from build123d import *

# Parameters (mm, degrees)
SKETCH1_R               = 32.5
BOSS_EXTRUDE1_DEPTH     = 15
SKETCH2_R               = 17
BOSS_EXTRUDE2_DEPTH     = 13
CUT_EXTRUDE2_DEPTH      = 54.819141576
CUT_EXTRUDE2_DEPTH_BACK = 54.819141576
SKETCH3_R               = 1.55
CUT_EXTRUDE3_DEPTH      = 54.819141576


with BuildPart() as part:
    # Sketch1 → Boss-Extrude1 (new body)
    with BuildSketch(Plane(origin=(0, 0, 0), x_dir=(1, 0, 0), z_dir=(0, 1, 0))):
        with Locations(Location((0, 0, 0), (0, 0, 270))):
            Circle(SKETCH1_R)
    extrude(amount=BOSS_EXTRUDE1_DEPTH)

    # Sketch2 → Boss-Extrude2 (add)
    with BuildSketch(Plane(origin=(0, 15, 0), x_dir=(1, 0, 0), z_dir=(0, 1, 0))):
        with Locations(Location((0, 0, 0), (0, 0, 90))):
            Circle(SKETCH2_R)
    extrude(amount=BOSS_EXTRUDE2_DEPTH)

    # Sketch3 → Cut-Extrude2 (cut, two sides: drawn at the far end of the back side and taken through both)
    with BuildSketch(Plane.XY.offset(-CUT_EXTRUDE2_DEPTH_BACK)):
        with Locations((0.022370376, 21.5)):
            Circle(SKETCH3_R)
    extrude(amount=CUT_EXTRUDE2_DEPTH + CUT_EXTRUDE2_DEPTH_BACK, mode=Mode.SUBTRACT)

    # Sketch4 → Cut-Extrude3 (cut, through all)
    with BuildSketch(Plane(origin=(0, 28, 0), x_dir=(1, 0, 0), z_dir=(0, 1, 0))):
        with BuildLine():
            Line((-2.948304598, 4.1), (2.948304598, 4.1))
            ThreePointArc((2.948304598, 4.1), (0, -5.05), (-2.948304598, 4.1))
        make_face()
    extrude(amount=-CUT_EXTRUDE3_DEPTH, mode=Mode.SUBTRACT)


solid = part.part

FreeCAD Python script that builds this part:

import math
import FreeCAD as App
import Part
import Sketcher
from FreeCAD import Vector

doc = App.newDocument("Part")
params = doc.addObject("Spreadsheet::Sheet", "Params")
for row, (alias, value) in enumerate([
    ("sketch1_diameter", "65 mm"),
    ("pad1_length", "15 mm"),
    ("sketch2_diameter", "34 mm"),
    ("pad2_length", "13 mm"),
    ("sketch3_diameter", "3.1 mm"),
    ("sketch4_radius", "5.05 mm"),
], start=1):
    params.set(f"A{row}", alias)
    params.set(f"B{row}", "=" + value)
    params.setAlias(f"B{row}", alias)

body = doc.addObject("PartDesign::Body", "Body")

sketch1 = body.newObject("Sketcher::SketchObject", "Sketch")
sketch1.AttachmentSupport = (doc.getObject("XZ_Plane"), [""])
sketch1.MapMode = "FlatFace"
sketch1.addGeometry(Part.Circle(Vector(0, 0, 0), Vector(0, 0, 1), 32), False)
sketch1.addConstraint([
    Sketcher.Constraint("Coincident", 0, 3, -1, 1),
    Sketcher.Constraint("Diameter", 0, 65.0),
])
sketch1.setExpression("Constraints[1]", "Params.sketch1_diameter")
pad1 = body.newObject("PartDesign::Pad", "Pad")
pad1.Profile = sketch1
pad1.setExpression("Length", "Params.pad1_length")
pad1.Reversed = True

sketch2 = body.newObject("Sketcher::SketchObject", "Sketch001")
sketch2.AttachmentSupport = (doc.getObject("XZ_Plane"), [""])
sketch2.MapMode = "FlatFace"
sketch2.AttachmentOffset = App.Placement(Vector(0, 0, -15), App.Rotation())
sketch2.addGeometry(Part.Circle(Vector(0, 0, 0), Vector(0, 0, 1), 17), False)
sketch2.addConstraint([
    Sketcher.Constraint("Coincident", 0, 3, -1, 1),
    Sketcher.Constraint("Diameter", 0, 34.0),
])
sketch2.setExpression("Constraints[1]", "Params.sketch2_diameter")
pad2 = body.newObject("PartDesign::Pad", "Pad001")
pad2.Profile = sketch2
pad2.setExpression("Length", "Params.pad2_length")
pad2.Reversed = True

sketch3 = body.newObject("Sketcher::SketchObject", "Sketch002")
sketch3.AttachmentSupport = (doc.getObject("XY_Plane"), [""])
sketch3.MapMode = "FlatFace"
sketch3.addGeometry(Part.Circle(Vector(0, 21.5, 0), Vector(0, 0, 1), 1.6), False)
sketch3.addConstraint([
    Sketcher.Constraint("Diameter", 0, 3.1),
    Sketcher.Constraint("DistanceY", -1, 1, 0, 3, 21.5),
    Sketcher.Constraint("DistanceX", -1, 1, 0, 3, 0.02237),
])
sketch3.setExpression("Constraints[0]", "Params.sketch3_diameter")
pocket1 = body.newObject("PartDesign::Pocket", "Pocket")
pocket1.Profile = sketch3
pocket1.Type = "ThroughAll"
pocket1.Midplane = True

sketch4 = body.newObject("Sketcher::SketchObject", "Sketch003")
sketch4.AttachmentSupport = (doc.getObject("XZ_Plane"), [""])
sketch4.MapMode = "FlatFace"
sketch4.AttachmentOffset = App.Placement(Vector(0, 0, -28), App.Rotation())
sketch4.addGeometry([
    Part.LineSegment(Vector(3, -4, 0), Vector(-3, -4, 0)),
    Part.ArcOfCircle(Part.Circle(Vector(0, 0, 0), Vector(0, 0, 1), 5), math.radians(-54), math.radians(234)),
], False)
sketch4.addConstraint([
    Sketcher.Constraint("Coincident", 0, 1, 1, 1),
    Sketcher.Constraint("Coincident", 1, 2, 0, 2),
    Sketcher.Constraint("Horizontal", 0),
    Sketcher.Constraint("Coincident", 1, 3, -1, 1),
    Sketcher.Constraint("Radius", 1, 5.05),
    Sketcher.Constraint("DistanceY", 0, 1, -1, 1, 4.1),
])
sketch4.setExpression("Constraints[4]", "Params.sketch4_radius")
pocket2 = body.newObject("PartDesign::Pocket", "Pocket001")
pocket2.Profile = sketch4
pocket2.Type = "ThroughAll"
pocket2.Reversed = True

doc.recompute()
